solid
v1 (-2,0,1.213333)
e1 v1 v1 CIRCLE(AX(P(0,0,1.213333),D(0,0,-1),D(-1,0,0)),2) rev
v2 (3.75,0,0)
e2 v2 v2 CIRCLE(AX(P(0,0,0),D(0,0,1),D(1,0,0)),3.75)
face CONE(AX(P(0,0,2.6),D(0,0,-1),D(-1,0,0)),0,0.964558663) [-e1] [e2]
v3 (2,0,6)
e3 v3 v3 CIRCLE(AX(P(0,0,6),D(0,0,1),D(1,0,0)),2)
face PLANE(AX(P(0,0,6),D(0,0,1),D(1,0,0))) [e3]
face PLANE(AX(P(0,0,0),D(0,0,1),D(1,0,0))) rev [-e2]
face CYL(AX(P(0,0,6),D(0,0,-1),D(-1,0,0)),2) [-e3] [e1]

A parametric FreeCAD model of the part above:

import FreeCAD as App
import Part
import Sketcher
Q = App.Units.Quantity


def add_polygon(sketch, points):
    """Adds a closed chain of lines whose ends are joined by coincident constraints."""
    first, n = sketch.GeometryCount, len(points)
    for a, b in zip(points, points[1:] + points[:1]):
        sketch.addGeometry(Part.LineSegment(App.Vector(*a, 0), App.Vector(*b, 0)), False)
    for i in range(n):
        sketch.addConstraint(Sketcher.Constraint("Coincident", first + i, 2, first + (i + 1) % n, 1))

doc = App.newDocument("Part")
body = doc.addObject("PartDesign::Body", "Body")

# Sketch on XY plane
sketch1 = body.newObject("Sketcher::SketchObject", "Sketch")
sketch1.AttachmentSupport = (doc.getObject("XY_Plane"), [""])
sketch1.MapMode = "FlatFace"
sketch1.addGeometry(Part.Circle(App.Vector(0, 0, 0), App.Vector(0, 0, 1), 2), False)
sketch1.addConstraint(Sketcher.Constraint("Coincident", 0, 3, -1, 1))
sketch1.addConstraint(Sketcher.Constraint("Diameter", 0, Q("4 mm")))
pad1 = body.newObject("PartDesign::Pad", "Pad")
pad1.Profile = sketch1
pad1.Length = 6

# Sketch on XZ plane
sketch2 = body.newObject("Sketcher::SketchObject", "Sketch001")
sketch2.AttachmentSupport = (doc.getObject("XZ_Plane"), [""])
sketch2.MapMode = "FlatFace"
add_polygon(sketch2, [(3.8, 0), (0, 0), (0, 2.6)])  # lines 0-2
sketch2.addConstraint(Sketcher.Constraint("Horizontal", 0))
sketch2.addConstraint(Sketcher.Constraint("Vertical", 1))
sketch2.addConstraint(Sketcher.Constraint("Coincident", 0, 2, -1, 1))
sketch2.addConstraint(Sketcher.Constraint("DistanceY", 1, 1, 1, 2, Q("2.6 mm")))
sketch2.addConstraint(Sketcher.Constraint("DistanceX", 0, 2, 0, 1, Q("3.75 mm")))
revolution = body.newObject("PartDesign::Revolution", "Revolution")
revolution.Profile = sketch2
revolution.ReferenceAxis = (sketch2, ["V_Axis"])
revolution.Angle = 360

doc.recompute()
